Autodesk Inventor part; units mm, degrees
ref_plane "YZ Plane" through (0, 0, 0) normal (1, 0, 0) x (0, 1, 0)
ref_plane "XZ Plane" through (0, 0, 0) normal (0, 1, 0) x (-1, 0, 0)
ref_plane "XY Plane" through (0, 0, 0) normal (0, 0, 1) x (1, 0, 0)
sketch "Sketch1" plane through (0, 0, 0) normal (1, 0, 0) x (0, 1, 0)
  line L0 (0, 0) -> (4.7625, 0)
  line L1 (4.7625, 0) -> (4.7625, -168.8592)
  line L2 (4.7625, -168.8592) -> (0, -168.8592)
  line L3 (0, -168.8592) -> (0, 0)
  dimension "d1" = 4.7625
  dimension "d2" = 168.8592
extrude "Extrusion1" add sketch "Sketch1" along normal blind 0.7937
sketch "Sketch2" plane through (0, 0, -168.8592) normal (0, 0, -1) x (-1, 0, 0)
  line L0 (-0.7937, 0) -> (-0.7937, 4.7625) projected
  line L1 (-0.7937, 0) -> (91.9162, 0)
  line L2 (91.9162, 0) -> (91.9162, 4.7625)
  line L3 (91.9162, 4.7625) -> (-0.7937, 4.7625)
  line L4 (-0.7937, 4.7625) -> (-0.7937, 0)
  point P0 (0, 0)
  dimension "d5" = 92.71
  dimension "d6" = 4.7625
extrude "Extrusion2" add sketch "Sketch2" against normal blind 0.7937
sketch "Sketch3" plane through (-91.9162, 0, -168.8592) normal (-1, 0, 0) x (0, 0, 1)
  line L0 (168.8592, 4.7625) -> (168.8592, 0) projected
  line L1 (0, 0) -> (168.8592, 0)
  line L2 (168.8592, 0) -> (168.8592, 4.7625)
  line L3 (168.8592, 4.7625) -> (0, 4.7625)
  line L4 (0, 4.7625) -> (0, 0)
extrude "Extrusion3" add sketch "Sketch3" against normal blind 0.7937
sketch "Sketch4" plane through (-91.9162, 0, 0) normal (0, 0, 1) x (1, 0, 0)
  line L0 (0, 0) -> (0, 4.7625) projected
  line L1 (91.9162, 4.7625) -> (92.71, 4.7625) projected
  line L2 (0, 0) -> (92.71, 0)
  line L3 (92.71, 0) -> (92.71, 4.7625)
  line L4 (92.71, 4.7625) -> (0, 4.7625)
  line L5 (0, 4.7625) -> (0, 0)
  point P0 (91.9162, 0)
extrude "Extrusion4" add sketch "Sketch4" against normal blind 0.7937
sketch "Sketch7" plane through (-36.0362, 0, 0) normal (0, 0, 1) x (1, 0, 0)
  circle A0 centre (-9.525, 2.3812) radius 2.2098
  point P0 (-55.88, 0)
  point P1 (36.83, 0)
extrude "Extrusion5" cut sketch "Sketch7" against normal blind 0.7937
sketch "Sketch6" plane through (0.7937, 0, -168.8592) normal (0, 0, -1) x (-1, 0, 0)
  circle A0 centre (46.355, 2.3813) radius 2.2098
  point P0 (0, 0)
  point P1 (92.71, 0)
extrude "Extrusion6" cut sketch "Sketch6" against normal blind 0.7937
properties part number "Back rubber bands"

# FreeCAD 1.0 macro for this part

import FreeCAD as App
import Part
import Sketcher

V = App.Vector
Q = App.Units.Quantity

doc = App.newDocument("Part")
body = doc.addObject("PartDesign::Body", "Body")

# Sketch on YZ plane
sketch1 = body.newObject("Sketcher::SketchObject", "Sketch")
sketch1.AttachmentSupport = (doc.getObject("YZ_Plane"), [""])
sketch1.MapMode = "FlatFace"
sketch1.addGeometry(Part.LineSegment(V(4.8, 0, 0), V(0, 0, 0)), False)
sketch1.addGeometry(Part.LineSegment(V(0, 0, 0), V(0, -168.9, 0)), False)
sketch1.addGeometry(Part.LineSegment(V(0, -168.9, 0), V(4.8, -168.9, 0)), False)
sketch1.addGeometry(Part.LineSegment(V(4.8, -168.9, 0), V(4.8, 0, 0)), False)
sketch1.addConstraint(Sketcher.Constraint("Coincident", 0, 2, 1, 1))
sketch1.addConstraint(Sketcher.Constraint("Coincident", 1, 2, 2, 1))
sketch1.addConstraint(Sketcher.Constraint("Coincident", 2, 2, 3, 1))
sketch1.addConstraint(Sketcher.Constraint("Coincident", 3, 2, 0, 1))
sketch1.addConstraint(Sketcher.Constraint("Horizontal", 0))
sketch1.addConstraint(Sketcher.Constraint("Vertical", 1))
sketch1.addConstraint(Sketcher.Constraint("Horizontal", 2))
sketch1.addConstraint(Sketcher.Constraint("Vertical", 3))
sketch1.addConstraint(Sketcher.Constraint("Coincident", 0, 2, -1, 1))
sketch1.addConstraint(Sketcher.Constraint("DistanceX", 0, 2, 0, 1, Q("0.1875 in")))
sketch1.addConstraint(Sketcher.Constraint("DistanceY", 1, 2, 1, 1, Q("6.648 in")))
pad1 = body.newObject("PartDesign::Pad", "Pad")
pad1.Profile = sketch1
pad1.Length = Q("0.031248 in")

# Sketch on XY plane
sketch2 = body.newObject("Sketcher::SketchObject", "Sketch001")
sketch2.AttachmentSupport = (doc.getObject("XY_Plane"), [""])
sketch2.MapMode = "FlatFace"
sketch2.AttachmentOffset = App.Placement(V(0, 0, -6.648 * 25.4), App.Rotation())
sketch2.addGeometry(Part.LineSegment(V(0.8, 4.8, 0), V(0.8, 0, 0)), False)
sketch2.addGeometry(Part.LineSegment(V(0.8, 0, 0), V(-91.9, 0, 0)), False)
sketch2.addGeometry(Part.LineSegment(V(-91.9, 0, 0), V(-91.9, 4.8, 0)), False)
sketch2.addGeometry(Part.LineSegment(V(-91.9, 4.8, 0), V(0.8, 4.8, 0)), False)
sketch2.addConstraint(Sketcher.Constraint("Coincident", 0, 2, 1, 1))
sketch2.addConstraint(Sketcher.Constraint("Coincident", 1, 2, 2, 1))
sketch2.addConstraint(Sketcher.Constraint("Coincident", 2, 2, 3, 1))
sketch2.addConstraint(Sketcher.Constraint("Coincident", 3, 2, 0, 1))
sketch2.addConstraint(Sketcher.Constraint("Vertical", 0))
sketch2.addConstraint(Sketcher.Constraint("Horizontal", 1))
sketch2.addConstraint(Sketcher.Constraint("Vertical", 2))
sketch2.addConstraint(Sketcher.Constraint("Horizontal", 3))
sketch2.addConstraint(Sketcher.Constraint("PointOnObject", 0, 2, -1))
sketch2.addConstraint(Sketcher.Constraint("DistanceX", 1, 2, 1, 1, Q("3.65 in")))
sketch2.addConstraint(Sketcher.Constraint("DistanceY", 0, 2, 0, 1, Q("0.1875 in")))
sketch2.addConstraint(Sketcher.Constraint("DistanceX", -1, 1, 0, 2, Q("0.031248 in")))
pad2 = body.newObject("PartDesign::Pad", "Pad001")
pad2.Profile = sketch2
pad2.Length = Q("0.031248 in")

# Sketch on YZ plane
sketch3 = body.newObject("Sketcher::SketchObject", "Sketch002")
sketch3.AttachmentSupport = (doc.getObject("YZ_Plane"), [""])
sketch3.MapMode = "FlatFace"
sketch3.AttachmentOffset = App.Placement(V(0, 0, -91.9162), App.Rotation())
sketch3.addGeometry(Part.LineSegment(V(0, 0, 0), V(4.8, 0, 0)), False)
sketch3.addGeometry(Part.LineSegment(V(4.8, 0, 0), V(4.8, -168.9, 0)), False)
sketch3.addGeometry(Part.LineSegment(V(4.8, -168.9, 0), V(0, -168.9, 0)), False)
sketch3.addGeometry(Part.LineSegment(V(0, -168.9, 0), V(0, 0, 0)), False)
sketch3.addConstraint(Sketcher.Constraint("Coincident", 0, 2, 1, 1))
sketch3.addConstraint(Sketcher.Constraint("Coincident", 1, 2, 2, 1))
sketch3.addConstraint(Sketcher.Constraint("Coincident", 2, 2, 3, 1))
sketch3.addConstraint(Sketcher.Constraint("Coincident", 3, 2, 0, 1))
sketch3.addConstraint(Sketcher.Constraint("Horizontal", 0))
sketch3.addConstraint(Sketcher.Constraint("Vertical", 1))
sketch3.addConstraint(Sketcher.Constraint("Horizontal", 2))
sketch3.addConstraint(Sketcher.Constraint("Vertical", 3))
sketch3.addConstraint(Sketcher.Constraint("Coincident", 3, 2, -1, 1))
sketch3.addConstraint(Sketcher.Constraint("DistanceX", 0, 1, 0, 2, Q("0.1875 in")))
sketch3.addConstraint(Sketcher.Constraint("DistanceY", 1, 2, 1, 1, Q("6.648 in")))
pad3 = body.newObject("PartDesign::Pad", "Pad002")
pad3.Profile = sketch3
pad3.Length = Q("0.031248 in")

# Sketch on XY plane
sketch4 = body.newObject("Sketcher::SketchObject", "Sketch003")
sketch4.AttachmentSupport = (doc.getObject("XY_Plane"), [""])
sketch4.MapMode = "FlatFace"
sketch4.addGeometry(Part.LineSegment(V(-91.9, 4.8, 0), V(-91.9, 0, 0)), False)
sketch4.addGeometry(Part.LineSegment(V(-91.9, 0, 0), V(0.8, 0, 0)), False)
sketch4.addGeometry(Part.LineSegment(V(0.8, 0, 0), V(0.8, 4.8, 0)), False)
sketch4.addGeometry(Part.LineSegment(V(0.8, 4.8, 0), V(-91.9, 4.8, 0)), False)
sketch4.addConstraint(Sketcher.Constraint("Coincident", 0, 2, 1, 1))
sketch4.addConstraint(Sketcher.Constraint("Coincident", 1, 2, 2, 1))
sketch4.addConstraint(Sketcher.Constraint("Coincident", 2, 2, 3, 1))
sketch4.addConstraint(Sketcher.Constraint("Coincident", 3, 2, 0, 1))
sketch4.addConstraint(Sketcher.Constraint("Vertical", 0))
sketch4.addConstraint(Sketcher.Constraint("Horizontal", 1))
sketch4.addConstraint(Sketcher.Constraint("Vertical", 2))
sketch4.addConstraint(Sketcher.Constraint("Horizontal", 3))
sketch4.addConstraint(Sketcher.Constraint("PointOnObject", 0, 2, -1))
sketch4.addConstraint(Sketcher.Constraint("DistanceX", 1, 1, 1, 2, Q("3.65 in")))
sketch4.addConstraint(Sketcher.Constraint("DistanceY", 0, 2, 0, 1, Q("0.1875 in")))
sketch4.addConstraint(Sketcher.Constraint("DistanceX", -1, 1, 1, 2, Q("0.031252 in")))
pad4 = body.newObject("PartDesign::Pad", "Pad003")
pad4.Profile = sketch4
pad4.Length = Q("0.031248 in")
pad4.Reversed = True

# Sketch on XY plane
sketch5 = body.newObject("Sketcher::SketchObject", "Sketch004")
sketch5.AttachmentSupport = (doc.getObject("XY_Plane"), [""])
sketch5.MapMode = "FlatFace"
sketch5.addGeometry(Part.Circle(V(-45.6, 2.4, 0), V(0, 0, 1), 2.2), False)
sketch5.addConstraint(Sketcher.Constraint("Diameter", 0, Q("0.174 in")))
sketch5.addConstraint(Sketcher.Constraint("DistanceY", -1, 1, 0, 3, Q("0.093748 in")))
sketch5.addConstraint(Sketcher.Constraint("DistanceX", 0, 3, -1, 1, 45.5612))
pocket1 = body.newObject("PartDesign::Pocket", "Pocket")
pocket1.Profile = sketch5
pocket1.Length = Q("0.031248 in")

# Sketch on XY plane
sketch6 = body.newObject("Sketcher::SketchObject", "Sketch005")
sketch6.AttachmentSupport = (doc.getObject("XY_Plane"), [""])
sketch6.MapMode = "FlatFace"
sketch6.AttachmentOffset = App.Placement(V(0, 0, -6.648 * 25.4), App.Rotation())
sketch6.addGeometry(Part.Circle(V(-45.6, 2.4, 0), V(0, 0, 1), 2.2), False)
sketch6.addConstraint(Sketcher.Constraint("Diameter", 0, Q("0.174 in")))
sketch6.addConstraint(Sketcher.Constraint("DistanceY", -1, 1, 0, 3, Q("0.093752 in")))
sketch6.addConstraint(Sketcher.Constraint("DistanceX", 0, 3, -1, 1, 45.5613))
pocket2 = body.newObject("PartDesign::Pocket", "Pocket001")
pocket2.Profile = sketch6
pocket2.Length = Q("0.031248 in")
pocket2.Reversed = True

doc.recompute()
